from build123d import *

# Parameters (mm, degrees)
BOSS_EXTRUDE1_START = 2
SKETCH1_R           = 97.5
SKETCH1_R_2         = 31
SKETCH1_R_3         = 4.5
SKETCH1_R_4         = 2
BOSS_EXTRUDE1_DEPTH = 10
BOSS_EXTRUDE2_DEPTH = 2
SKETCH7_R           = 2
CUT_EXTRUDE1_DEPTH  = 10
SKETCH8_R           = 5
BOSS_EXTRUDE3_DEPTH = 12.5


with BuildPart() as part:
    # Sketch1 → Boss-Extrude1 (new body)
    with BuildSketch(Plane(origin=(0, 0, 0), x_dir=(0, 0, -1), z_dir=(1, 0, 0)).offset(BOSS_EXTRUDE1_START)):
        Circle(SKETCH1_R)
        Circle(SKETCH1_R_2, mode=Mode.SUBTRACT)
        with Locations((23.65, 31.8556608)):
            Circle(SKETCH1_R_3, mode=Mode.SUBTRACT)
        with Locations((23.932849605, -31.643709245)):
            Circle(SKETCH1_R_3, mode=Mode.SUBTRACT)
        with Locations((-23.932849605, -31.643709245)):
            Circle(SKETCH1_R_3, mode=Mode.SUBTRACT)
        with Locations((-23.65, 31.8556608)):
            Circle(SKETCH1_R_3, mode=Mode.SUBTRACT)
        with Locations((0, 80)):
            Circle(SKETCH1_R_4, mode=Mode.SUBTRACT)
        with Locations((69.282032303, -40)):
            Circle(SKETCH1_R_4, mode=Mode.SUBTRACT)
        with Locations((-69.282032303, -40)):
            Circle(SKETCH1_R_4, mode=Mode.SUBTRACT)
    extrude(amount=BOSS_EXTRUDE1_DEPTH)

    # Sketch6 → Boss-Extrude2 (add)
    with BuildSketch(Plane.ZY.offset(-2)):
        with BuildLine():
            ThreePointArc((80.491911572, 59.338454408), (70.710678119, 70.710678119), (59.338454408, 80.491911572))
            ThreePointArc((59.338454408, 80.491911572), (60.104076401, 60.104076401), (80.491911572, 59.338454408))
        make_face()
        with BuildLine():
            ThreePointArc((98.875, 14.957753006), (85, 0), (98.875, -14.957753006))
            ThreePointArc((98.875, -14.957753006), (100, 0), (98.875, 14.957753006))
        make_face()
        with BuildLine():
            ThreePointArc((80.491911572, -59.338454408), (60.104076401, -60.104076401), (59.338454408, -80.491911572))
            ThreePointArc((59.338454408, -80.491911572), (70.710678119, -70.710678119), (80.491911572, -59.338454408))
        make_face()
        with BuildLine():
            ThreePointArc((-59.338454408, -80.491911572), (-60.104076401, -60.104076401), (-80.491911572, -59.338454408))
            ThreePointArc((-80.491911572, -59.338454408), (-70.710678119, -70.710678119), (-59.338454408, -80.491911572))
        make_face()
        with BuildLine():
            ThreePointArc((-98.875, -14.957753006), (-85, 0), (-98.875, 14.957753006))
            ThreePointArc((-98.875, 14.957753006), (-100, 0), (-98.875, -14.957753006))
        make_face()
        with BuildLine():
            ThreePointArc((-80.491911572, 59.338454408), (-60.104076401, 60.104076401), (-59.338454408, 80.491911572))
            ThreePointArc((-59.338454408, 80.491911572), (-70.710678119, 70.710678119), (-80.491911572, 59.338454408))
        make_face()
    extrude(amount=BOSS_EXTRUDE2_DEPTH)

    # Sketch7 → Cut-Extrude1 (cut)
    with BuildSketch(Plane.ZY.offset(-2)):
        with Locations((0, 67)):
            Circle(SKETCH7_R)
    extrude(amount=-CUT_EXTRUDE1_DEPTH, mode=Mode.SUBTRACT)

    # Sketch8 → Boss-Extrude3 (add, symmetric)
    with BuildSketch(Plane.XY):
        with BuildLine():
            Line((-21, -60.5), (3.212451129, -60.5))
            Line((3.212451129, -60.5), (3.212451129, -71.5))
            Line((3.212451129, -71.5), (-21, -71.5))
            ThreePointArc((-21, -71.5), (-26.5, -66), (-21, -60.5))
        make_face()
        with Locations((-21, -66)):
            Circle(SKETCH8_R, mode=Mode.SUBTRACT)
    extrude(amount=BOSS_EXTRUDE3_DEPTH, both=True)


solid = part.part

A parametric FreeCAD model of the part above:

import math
import FreeCAD as App
import Part
import Sketcher
Q = App.Units.Quantity

doc = App.newDocument("Part")
body = doc.addObject("PartDesign::Body", "Body")

# Sketch on YZ plane
sketch1 = body.newObject("Sketcher::SketchObject", "Sketch")
sketch1.AttachmentSupport = (doc.getObject("YZ_Plane"), [""])
sketch1.MapMode = "FlatFace"
sketch1.AttachmentOffset = App.Placement(App.Vector(0, 0, 2), App.Rotation())
sketch1.addGeometry([
    Part.Circle(App.Vector(0, 0, 0), App.Vector(0, 0, 1), 97.5),  # 0
    Part.Circle(App.Vector(-40, 69.3, 0), App.Vector(0, 0, 1), 2),  # 1
    Part.Circle(App.Vector(-31.6, 23.9, 0), App.Vector(0, 0, 1), 4.5),  # 2
    Part.Circle(App.Vector(-31.6, -23.9, 0), App.Vector(0, 0, 1), 4.5),  # 3
    Part.Circle(App.Vector(-40, -69.3, 0), App.Vector(0, 0, 1), 2),  # 4
    Part.Circle(App.Vector(0, 0, 0), App.Vector(0, 0, 1), 31),  # 5
    Part.Circle(App.Vector(31.9, 23.6, 0), App.Vector(0, 0, 1), 4.5),  # 6
    Part.Circle(App.Vector(31.9, -23.6, 0), App.Vector(0, 0, 1), 4.5),  # 7
    Part.Circle(App.Vector(80, 0, 0), App.Vector(0, 0, 1), 2),  # 8
], False)
sketch1.addConstraint([
    Sketcher.Constraint("Coincident", 0, 3, -1, 1),
    Sketcher.Constraint("Coincident", 5, 3, -1, 1),
    Sketcher.Constraint("Equal", 2, 3),
    Sketcher.Constraint("Equal", 1, 4),
    Sketcher.Constraint("Equal", 3, 6),
    Sketcher.Constraint("Equal", 6, 7),
    Sketcher.Constraint("Equal", 4, 8),
    Sketcher.Constraint("Symmetric", 2, 3, 3, 3, -1),
    Sketcher.Constraint("Symmetric", 1, 3, 4, 3, -1),
    Sketcher.Constraint("Symmetric", 6, 3, 7, 3, -1),
    Sketcher.Constraint("PointOnObject", 8, 3, -1),
    Sketcher.Constraint("Diameter", 0, Q("195 mm")),
    Sketcher.Constraint("Diameter", 1, Q("4 mm")),
    Sketcher.Constraint("Diameter", 2, Q("9 mm")),
    Sketcher.Constraint("Diameter", 5, Q("62 mm")),
    Sketcher.Constraint("DistanceX", 1, 3, -1, 1, Q("40 mm")),
    Sketcher.Constraint("DistanceX", -1, 1, 8, 3, Q("80 mm")),
    Sketcher.Constraint("DistanceY", 7, 3, 6, 3, Q("47.3 mm")),
    Sketcher.Constraint("DistanceY", 3, 3, 2, 3, Q("47.865699 mm")),
    Sketcher.Constraint("DistanceX", 2, 3, -1, 1, Q("31.643709 mm")),
    Sketcher.Constraint("DistanceX", -1, 1, 6, 3, Q("31.855661 mm")),
    Sketcher.Constraint("DistanceY", 3, 3, 1, 3, Q("93.214882 mm")),
])
pad1 = body.newObject("PartDesign::Pad", "Pad")
pad1.Profile = sketch1
pad1.Length = 10

# Sketch on YZ plane
sketch2 = body.newObject("Sketcher::SketchObject", "Sketch001")
sketch2.AttachmentSupport = (doc.getObject("YZ_Plane"), [""])
sketch2.MapMode = "FlatFace"
sketch2.AttachmentOffset = App.Placement(App.Vector(0, 0, 2), App.Rotation())
sketch2.addGeometry([
    Part.ArcOfCircle(Part.Circle(App.Vector(0, 0, 0), App.Vector(0, 0, 1), 100), math.radians(36.4), math.radians(53.6)),  # 0
    Part.ArcOfCircle(Part.Circle(App.Vector(71, 71, 0), App.Vector(0, 0, 1), 15), math.radians(139), math.radians(311)),  # 1
    Part.ArcOfCircle(Part.Circle(App.Vector(0, 100, 0), App.Vector(0, 0, 1), 15), math.radians(-176), math.radians(-4)),  # 2
    Part.ArcOfCircle(Part.Circle(App.Vector(0, 0, 0), App.Vector(0, 0, 1), 100), math.radians(81.4), math.radians(98.6)),  # 3
    Part.ArcOfCircle(Part.Circle(App.Vector(-71, 71, 0), App.Vector(0, 0, 1), 15), math.radians(-131), math.radians(41)),  # 4
    Part.ArcOfCircle(Part.Circle(App.Vector(0, 0, 0), App.Vector(0, 0, 1), 100), math.radians(126.4), math.radians(143.6)),  # 5
    Part.ArcOfCircle(Part.Circle(App.Vector(-71, -71, 0), App.Vector(0, 0, 1), 15), math.radians(-41), math.radians(131)),  # 6
    Part.ArcOfCircle(Part.Circle(App.Vector(0, 0, 0), App.Vector(0, 0, 1), 100), math.radians(-143.6), math.radians(-126.4)),  # 7
    Part.ArcOfCircle(Part.Circle(App.Vector(0, -100, 0), App.Vector(0, 0, 1), 15), math.radians(4), math.radians(176)),  # 8
    Part.ArcOfCircle(Part.Circle(App.Vector(0, 0, 0), App.Vector(0, 0, 1), 100), math.radians(-98.6), math.radians(-81.4)),  # 9
    Part.ArcOfCircle(Part.Circle(App.Vector(71, -71, 0), App.Vector(0, 0, 1), 15), math.radians(49), math.radians(221)),  # 10
    Part.ArcOfCircle(Part.Circle(App.Vector(0, 0, 0), App.Vector(0, 0, 1), 100), math.radians(-53.6), math.radians(-36.4)),  # 11
], False)
sketch2.addConstraint([
    Sketcher.Constraint("Coincident", 0, 1, 1, 2),
    Sketcher.Constraint("Coincident", 1, 1, 0, 2),
    Sketcher.Constraint("Coincident", 2, 1, 3, 2),
    Sketcher.Constraint("Coincident", 3, 1, 2, 2),
    Sketcher.Constraint("Coincident", 4, 1, 5, 2),
    Sketcher.Constraint("Coincident", 5, 1, 4, 2),
    Sketcher.Constraint("Coincident", 6, 1, 7, 2),
    Sketcher.Constraint("Coincident", 7, 1, 6, 2),
    Sketcher.Constraint("Coincident", 8, 1, 9, 2),
    Sketcher.Constraint("Coincident", 9, 1, 8, 2),
    Sketcher.Constraint("Coincident", 10, 1, 11, 2),
    Sketcher.Constraint("Coincident", 11, 1, 10, 2),
    Sketcher.Constraint("Coincident", 0, 3, -1, 1),
    Sketcher.Constraint("Coincident", 3, 3, -1, 1),
    Sketcher.Constraint("Coincident", 5, 3, -1, 1),
    Sketcher.Constraint("Coincident", 7, 3, -1, 1),
    Sketcher.Constraint("Coincident", 9, 3, -1, 1),
    Sketcher.Constraint("Coincident", 11, 3, -1, 1),
    Sketcher.Constraint("Equal", 1, 2),
    Sketcher.Constraint("Equal", 0, 3),
    Sketcher.Constraint("Equal", 2, 4),
    Sketcher.Constraint("Equal", 3, 5),
    Sketcher.Constraint("Equal", 4, 6),
    Sketcher.Constraint("Equal", 5, 7),
    Sketcher.Constraint("Equal", 6, 8),
    Sketcher.Constraint("Equal", 7, 9),
    Sketcher.Constraint("Equal", 8, 10),
    Sketcher.Constraint("Equal", 9, 11),
    Sketcher.Constraint("Symmetric", 1, 3, 6, 3, -1, 1),
    Sketcher.Constraint("Symmetric", 2, 3, 8, 3, -1, 1),
    Sketcher.Constraint("Symmetric", 4, 3, 10, 3, -1, 1),
    Sketcher.Constraint("Symmetric", 1, 3, 4, 3, -2),
    Sketcher.Constraint("PointOnObject", 2, 3, -2),
    Sketcher.Constraint("Radius", 0, Q("100 mm")),
    Sketcher.Constraint("Radius", 1, Q("15 mm")),
    Sketcher.Constraint("DistanceY", -1, 1, 2, 3, Q("100 mm")),
    Sketcher.Constraint("DistanceX", 3, 1, 1, 1, Q("44.380701 mm")),
    Sketcher.Constraint("DistanceX", -1, 1, 1, 3, Q("70.710678 mm")),
])
pad2 = body.newObject("PartDesign::Pad", "Pad001")
pad2.Profile = sketch2
pad2.Length = 2
pad2.Reversed = True

# Sketch on YZ plane
sketch3 = body.newObject("Sketcher::SketchObject", "Sketch002")
sketch3.AttachmentSupport = (doc.getObject("YZ_Plane"), [""])
sketch3.MapMode = "FlatFace"
sketch3.AttachmentOffset = App.Placement(App.Vector(0, 0, 2), App.Rotation())
sketch3.addGeometry(Part.Circle(App.Vector(67, 0, 0), App.Vector(0, 0, 1), 2), False)
sketch3.addConstraint([
    Sketcher.Constraint("PointOnObject", 0, 3, -1),
    Sketcher.Constraint("Diameter", 0, Q("4 mm")),
    Sketcher.Constraint("DistanceX", -1, 1, 0, 3, Q("67 mm")),
])
pocket1 = body.newObject("PartDesign::Pocket", "Pocket")
pocket1.Profile = sketch3
pocket1.Length = 10
pocket1.Reversed = True

# Sketch on XY plane
sketch4 = body.newObject("Sketcher::SketchObject", "Sketch003")
sketch4.AttachmentSupport = (doc.getObject("XY_Plane"), [""])
sketch4.MapMode = "FlatFace"
sketch4.addGeometry([
    Part.LineSegment(App.Vector(3, -60, 0), App.Vector(-21, -60, 0)),  # 0
    Part.ArcOfCircle(Part.Circle(App.Vector(-21, -66, 0), App.Vector(0, 0, 1), 6), math.radians(90), math.radians(270)),  # 1
    Part.LineSegment(App.Vector(-21, -72, 0), App.Vector(3, -72, 0)),  # 2
    Part.LineSegment(App.Vector(3, -72, 0), App.Vector(3, -60, 0)),  # 3
    Part.Circle(App.Vector(-21, -66, 0), App.Vector(0, 0, 1), 5),  # 4
], False)
sketch4.addConstraint([
    Sketcher.Constraint("Tangent", 0, 2, 1, 1),
    Sketcher.Constraint("Tangent", 1, 2, 2, 1),
    Sketcher.Constraint("Coincident", 2, 2, 3, 1),
    Sketcher.Constraint("Coincident", 3, 2, 0, 1),
    Sketcher.Constraint("Horizontal", 0),
    Sketcher.Constraint("Horizontal", 2),
    Sketcher.Constraint("Vertical", 3),
    Sketcher.Constraint("Coincident", 4, 3, 1, 3),
    Sketcher.Constraint("Diameter", 4, Q("10 mm")),
    Sketcher.Constraint("Radius", 1, Q("5.5 mm")),
    Sketcher.Constraint("DistanceX", 1, 3, -1, 1, Q("21 mm")),
    Sketcher.Constraint("DistanceY", 1, 3, -1, 1, Q("66 mm")),
    Sketcher.Constraint("DistanceX", 0, 2, 0, 1, Q("24.212451 mm")),
])
pad3 = body.newObject("PartDesign::Pad", "Pad002")
pad3.Profile = sketch4
pad3.Length = 25
pad3.Midplane = True

doc.recompute()
